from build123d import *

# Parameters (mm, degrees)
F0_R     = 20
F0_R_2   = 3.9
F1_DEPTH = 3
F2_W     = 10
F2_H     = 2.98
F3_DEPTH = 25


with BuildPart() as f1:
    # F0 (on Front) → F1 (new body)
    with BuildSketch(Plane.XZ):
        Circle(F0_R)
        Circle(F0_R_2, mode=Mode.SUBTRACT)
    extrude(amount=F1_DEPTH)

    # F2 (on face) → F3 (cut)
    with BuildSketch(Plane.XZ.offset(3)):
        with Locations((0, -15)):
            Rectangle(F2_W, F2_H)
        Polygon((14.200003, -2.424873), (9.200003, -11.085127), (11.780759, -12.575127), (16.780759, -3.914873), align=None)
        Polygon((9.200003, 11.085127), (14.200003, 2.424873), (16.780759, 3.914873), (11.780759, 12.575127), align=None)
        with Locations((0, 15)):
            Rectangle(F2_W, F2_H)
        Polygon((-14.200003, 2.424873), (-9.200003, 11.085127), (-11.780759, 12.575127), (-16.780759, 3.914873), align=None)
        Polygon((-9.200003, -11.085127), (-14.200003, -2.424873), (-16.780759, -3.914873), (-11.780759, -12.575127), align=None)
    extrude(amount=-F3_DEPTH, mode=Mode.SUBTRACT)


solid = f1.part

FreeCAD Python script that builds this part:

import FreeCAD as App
import Part
import Sketcher
Q = App.Units.Quantity

doc = App.newDocument("Part")
params = doc.addObject("Spreadsheet::Sheet", "Params")
for row, (alias, value) in enumerate([
    ("sketch1_diameter", "40 mm"),
    ("sketch1_diameter2", "7.8 mm"),
    ("pad1_length", "3 mm"),
    ("sketch2_width", "10 mm"),
    ("sketch2_length", "10 mm"),
    ("sketch2_height", "2.98 mm"),
    ("sketch2_length2", "2.98 mm"),
    ("pocket1_length", "25 mm"),
], start=1):
    params.set(f"A{row}", alias)
    params.set(f"B{row}", "=" + value)
    params.setAlias(f"B{row}", alias)

body = doc.addObject("PartDesign::Body", "Body")

sketch1 = body.newObject("Sketcher::SketchObject", "Sketch")
sketch1.AttachmentSupport = (doc.getObject("XZ_Plane"), [""])
sketch1.MapMode = "FlatFace"
sketch1.addGeometry([
    Part.Circle(App.Vector(0, 0, 0), App.Vector(0, 0, 1), 20),
    Part.Circle(App.Vector(0, 0, 0), App.Vector(0, 0, 1), 3.9),
], False)
sketch1.addConstraint([
    Sketcher.Constraint("Coincident", 0, 3, -1, 1),
    Sketcher.Constraint("Coincident", 1, 3, -1, 1),
    Sketcher.Constraint("Diameter", 0, 40.0),
    Sketcher.Constraint("Diameter", 1, 7.8),
])
sketch1.setExpression("Constraints[2]", "Params.sketch1_diameter")
sketch1.setExpression("Constraints[3]", "Params.sketch1_diameter2")
pad1 = body.newObject("PartDesign::Pad", "Pad")
pad1.Profile = sketch1
pad1.setExpression("Length", "Params.pad1_length")

sketch2 = body.newObject("Sketcher::SketchObject", "Sketch001")
sketch2.AttachmentSupport = (doc.getObject("XZ_Plane"), [""])
sketch2.MapMode = "FlatFace"
sketch2.AttachmentOffset = App.Placement(App.Vector(0, 0, 3), App.Rotation())
sketch2.addGeometry([
    Part.LineSegment(App.Vector(-5, -13.5, 0), App.Vector(-5, -16.5, 0)),
    Part.LineSegment(App.Vector(-5, -16.5, 0), App.Vector(5, -16.5, 0)),
    Part.LineSegment(App.Vector(5, -16.5, 0), App.Vector(5, -13.5, 0)),
    Part.LineSegment(App.Vector(5, -13.5, 0), App.Vector(-5, -13.5, 0)),
    Part.LineSegment(App.Vector(14.2, -2.4, 0), App.Vector(9.2, -11.1, 0)),
    Part.LineSegment(App.Vector(9.2, -11.1, 0), App.Vector(11.8, -12.6, 0)),
    Part.LineSegment(App.Vector(11.8, -12.6, 0), App.Vector(16.8, -3.9, 0)),
    Part.LineSegment(App.Vector(16.8, -3.9, 0), App.Vector(14.2, -2.4, 0)),
    Part.LineSegment(App.Vector(9.2, 11.1, 0), App.Vector(14.2, 2.4, 0)),
    Part.LineSegment(App.Vector(14.2, 2.4, 0), App.Vector(16.8, 3.9, 0)),
    Part.LineSegment(App.Vector(16.8, 3.9, 0), App.Vector(11.8, 12.6, 0)),
    Part.LineSegment(App.Vector(11.8, 12.6, 0), App.Vector(9.2, 11.1, 0)),
    Part.LineSegment(App.Vector(-5, 16.5, 0), App.Vector(-5, 13.5, 0)),
    Part.LineSegment(App.Vector(-5, 13.5, 0), App.Vector(5, 13.5, 0)),
    Part.LineSegment(App.Vector(5, 13.5, 0), App.Vector(5, 16.5, 0)),
    Part.LineSegment(App.Vector(5, 16.5, 0), App.Vector(-5, 16.5, 0)),
    Part.LineSegment(App.Vector(-14.2, 2.4, 0), App.Vector(-9.2, 11.1, 0)),
    Part.LineSegment(App.Vector(-9.2, 11.1, 0), App.Vector(-11.8, 12.6, 0)),
    Part.LineSegment(App.Vector(-11.8, 12.6, 0), App.Vector(-16.8, 3.9, 0)),
    Part.LineSegment(App.Vector(-16.8, 3.9, 0), App.Vector(-14.2, 2.4, 0)),
    Part.LineSegment(App.Vector(-9.2, -11.1, 0), App.Vector(-14.2, -2.4, 0)),
    Part.LineSegment(App.Vector(-14.2, -2.4, 0), App.Vector(-16.8, -3.9, 0)),
    Part.LineSegment(App.Vector(-16.8, -3.9, 0), App.Vector(-11.8, -12.6, 0)),
    Part.LineSegment(App.Vector(-11.8, -12.6, 0), App.Vector(-9.2, -11.1, 0)),
], False)
sketch2.addConstraint([
    Sketcher.Constraint("Coincident", 0, 2, 1, 1),
    Sketcher.Constraint("Coincident", 1, 2, 2, 1),
    Sketcher.Constraint("Coincident", 2, 2, 3, 1),
    Sketcher.Constraint("Coincident", 3, 2, 0, 1),
    Sketcher.Constraint("Coincident", 4, 2, 5, 1),
    Sketcher.Constraint("Coincident", 5, 2, 6, 1),
    Sketcher.Constraint("Coincident", 6, 2, 7, 1),
    Sketcher.Constraint("Coincident", 7, 2, 4, 1),
    Sketcher.Constraint("Coincident", 8, 2, 9, 1),
    Sketcher.Constraint("Coincident", 9, 2, 10, 1),
    Sketcher.Constraint("Coincident", 10, 2, 11, 1),
    Sketcher.Constraint("Coincident", 11, 2, 8, 1),
    Sketcher.Constraint("Coincident", 12, 2, 13, 1),
    Sketcher.Constraint("Coincident", 13, 2, 14, 1),
    Sketcher.Constraint("Coincident", 14, 2, 15, 1),
    Sketcher.Constraint("Coincident", 15, 2, 12, 1),
    Sketcher.Constraint("Coincident", 16, 2, 17, 1),
    Sketcher.Constraint("Coincident", 17, 2, 18, 1),
    Sketcher.Constraint("Coincident", 18, 2, 19, 1),
    Sketcher.Constraint("Coincident", 19, 2, 16, 1),
    Sketcher.Constraint("Coincident", 20, 2, 21, 1),
    Sketcher.Constraint("Coincident", 21, 2, 22, 1),
    Sketcher.Constraint("Coincident", 22, 2, 23, 1),
    Sketcher.Constraint("Coincident", 23, 2, 20, 1),
    Sketcher.Constraint("Vertical", 0),
    Sketcher.Constraint("Horizontal", 1),
    Sketcher.Constraint("Vertical", 2),
    Sketcher.Constraint("Horizontal", 3),
    Sketcher.Constraint("Vertical", 12),
    Sketcher.Constraint("Horizontal", 13),
    Sketcher.Constraint("Vertical", 14),
    Sketcher.Constraint("Horizontal", 15),
    Sketcher.Constraint("Symmetric", 2, 2, 12, 2, -1, 1),
    Sketcher.Constraint("Symmetric", 0, 2, 14, 2, -1, 1),
    Sketcher.Constraint("Symmetric", 4, 2, 16, 2, -1, 1),
    Sketcher.Constraint("Symmetric", 5, 2, 17, 2, -1, 1),
    Sketcher.Constraint("Symmetric", 6, 2, 18, 2, -1, 1),
    Sketcher.Constraint("Symmetric", 7, 2, 19, 2, -1, 1),
    Sketcher.Constraint("Symmetric", 8, 2, 20, 2, -1, 1),
    Sketcher.Constraint("Symmetric", 9, 2, 21, 2, -1, 1),
    Sketcher.Constraint("Symmetric", 10, 2, 22, 2, -1, 1),
    Sketcher.Constraint("Symmetric", 11, 2, 23, 2, -1, 1),
    Sketcher.Constraint("Symmetric", 11, 2, 16, 2, -2),
    Sketcher.Constraint("Symmetric", 10, 2, 17, 2, -2),
    Sketcher.Constraint("Symmetric", 9, 2, 18, 2, -2),
    Sketcher.Constraint("Symmetric", 8, 2, 19, 2, -2),
    Sketcher.Constraint("Perpendicular", 4, 5),
    Sketcher.Constraint("Perpendicular", 5, 6),
    Sketcher.Constraint("Perpendicular", 6, 7),
    Sketcher.Constraint("Vertical", 3, 2, 12, 2),
    Sketcher.Constraint("DistanceX", 1, 1, 1, 2, 10.0),
    Sketcher.Constraint("Angle", 4, Q("-120 deg")),
    Sketcher.Constraint("Distance", 4, 10.0),
    Sketcher.Constraint("DistanceY", 5, 2, 8, 2, 15.0),
    Sketcher.Constraint("DistanceY", 0, 2, 0, 1, 2.98),
    Sketcher.Constraint("Distance", 5, 2.98),
    Sketcher.Constraint("DistanceY", 0, 2, -1, 1, 16.49),
    Sketcher.Constraint("DistanceX", -1, 1, 5, 2, 11.780759),
])
sketch2.setExpression("Constraints[50]", "Params.sketch2_width")
sketch2.setExpression("Constraints[52]", "Params.sketch2_length")
sketch2.setExpression("Constraints[54]", "Params.sketch2_height")
sketch2.setExpression("Constraints[55]", "Params.sketch2_length2")
pocket1 = body.newObject("PartDesign::Pocket", "Pocket")
pocket1.Profile = sketch2
pocket1.setExpression("Length", "Params.pocket1_length")

doc.recompute()
